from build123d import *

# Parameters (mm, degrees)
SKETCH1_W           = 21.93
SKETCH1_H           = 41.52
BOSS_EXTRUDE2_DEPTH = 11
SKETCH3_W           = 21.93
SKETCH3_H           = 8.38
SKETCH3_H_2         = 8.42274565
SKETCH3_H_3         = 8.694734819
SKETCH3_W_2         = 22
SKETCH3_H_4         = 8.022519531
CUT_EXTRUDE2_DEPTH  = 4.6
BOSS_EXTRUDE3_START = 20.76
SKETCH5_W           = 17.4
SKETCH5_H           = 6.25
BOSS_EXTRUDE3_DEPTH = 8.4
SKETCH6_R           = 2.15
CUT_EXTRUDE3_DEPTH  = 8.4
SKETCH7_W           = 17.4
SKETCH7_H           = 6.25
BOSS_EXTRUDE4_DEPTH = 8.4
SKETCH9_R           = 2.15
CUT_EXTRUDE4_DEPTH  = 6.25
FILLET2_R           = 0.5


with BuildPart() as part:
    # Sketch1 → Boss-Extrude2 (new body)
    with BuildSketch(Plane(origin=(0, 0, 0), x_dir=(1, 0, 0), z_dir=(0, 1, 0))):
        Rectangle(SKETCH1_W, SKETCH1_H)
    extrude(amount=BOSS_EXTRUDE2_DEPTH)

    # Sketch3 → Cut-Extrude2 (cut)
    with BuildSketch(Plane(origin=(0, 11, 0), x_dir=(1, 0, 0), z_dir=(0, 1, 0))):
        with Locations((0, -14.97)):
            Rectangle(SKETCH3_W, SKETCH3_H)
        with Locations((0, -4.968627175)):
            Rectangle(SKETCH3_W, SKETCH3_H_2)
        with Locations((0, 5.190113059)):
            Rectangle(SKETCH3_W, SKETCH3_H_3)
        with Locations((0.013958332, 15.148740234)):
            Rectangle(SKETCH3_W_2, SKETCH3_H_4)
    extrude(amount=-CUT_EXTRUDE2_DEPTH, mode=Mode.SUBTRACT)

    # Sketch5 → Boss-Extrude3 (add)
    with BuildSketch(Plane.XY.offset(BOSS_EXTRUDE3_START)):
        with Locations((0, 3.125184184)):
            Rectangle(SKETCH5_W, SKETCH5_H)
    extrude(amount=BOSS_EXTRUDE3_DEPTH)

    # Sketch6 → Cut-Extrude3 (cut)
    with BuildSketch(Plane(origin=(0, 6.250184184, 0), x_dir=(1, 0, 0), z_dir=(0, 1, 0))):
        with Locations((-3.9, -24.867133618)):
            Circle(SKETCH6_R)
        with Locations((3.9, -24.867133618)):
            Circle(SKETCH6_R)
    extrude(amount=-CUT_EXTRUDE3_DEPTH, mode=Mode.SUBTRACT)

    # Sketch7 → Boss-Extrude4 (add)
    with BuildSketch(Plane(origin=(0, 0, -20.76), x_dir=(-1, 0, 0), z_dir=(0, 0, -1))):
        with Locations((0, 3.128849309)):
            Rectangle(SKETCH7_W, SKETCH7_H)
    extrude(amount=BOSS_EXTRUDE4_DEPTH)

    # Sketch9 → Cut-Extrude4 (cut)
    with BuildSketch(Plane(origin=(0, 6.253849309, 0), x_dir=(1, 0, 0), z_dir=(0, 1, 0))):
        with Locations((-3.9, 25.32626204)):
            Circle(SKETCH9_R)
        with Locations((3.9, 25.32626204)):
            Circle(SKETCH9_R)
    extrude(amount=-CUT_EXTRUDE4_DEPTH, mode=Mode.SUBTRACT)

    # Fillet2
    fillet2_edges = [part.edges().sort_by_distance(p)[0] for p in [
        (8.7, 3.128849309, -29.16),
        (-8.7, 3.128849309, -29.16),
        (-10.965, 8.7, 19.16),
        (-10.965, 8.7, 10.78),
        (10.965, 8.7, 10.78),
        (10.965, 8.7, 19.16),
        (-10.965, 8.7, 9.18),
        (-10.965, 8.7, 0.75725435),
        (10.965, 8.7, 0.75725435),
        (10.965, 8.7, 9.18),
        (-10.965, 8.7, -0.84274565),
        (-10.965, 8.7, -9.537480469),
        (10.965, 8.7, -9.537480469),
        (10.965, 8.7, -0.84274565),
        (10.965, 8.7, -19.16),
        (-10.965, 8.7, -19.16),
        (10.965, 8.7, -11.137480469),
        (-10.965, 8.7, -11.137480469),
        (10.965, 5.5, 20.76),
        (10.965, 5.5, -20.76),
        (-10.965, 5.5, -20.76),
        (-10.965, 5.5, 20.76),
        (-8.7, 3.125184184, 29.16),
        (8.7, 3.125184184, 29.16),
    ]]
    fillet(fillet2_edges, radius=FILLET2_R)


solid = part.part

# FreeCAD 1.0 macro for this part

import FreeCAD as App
import Part
import Sketcher


def edges_at(feature, points):
    """Names of the edges that pass closest to the given points."""
    edges = feature.Shape.Edges
    near = lambda p: min(range(len(edges)), key=lambda i: edges[i].distToShape(Part.Vertex(*p))[0])
    return sorted({f"Edge{near(p) + 1}" for p in points})


def add_polygon(sketch, points):
    """Adds a closed chain of lines whose ends are joined by coincident constraints."""
    first, n = sketch.GeometryCount, len(points)
    for a, b in zip(points, points[1:] + points[:1]):
        sketch.addGeometry(Part.LineSegment(App.Vector(*a, 0), App.Vector(*b, 0)), False)
    for i in range(n):
        sketch.addConstraint(Sketcher.Constraint("Coincident", first + i, 2, first + (i + 1) % n, 1))

doc = App.newDocument("Part")
body = doc.addObject("PartDesign::Body", "Body")

# Sketch on XZ plane
sketch1 = body.newObject("Sketcher::SketchObject", "Sketch")
sketch1.AttachmentSupport = (doc.getObject("XZ_Plane"), [""])
sketch1.MapMode = "FlatFace"
add_polygon(sketch1, [(-11, -21), (-11, 21), (11, 21), (11, -21)])  # lines 0-3
sketch1.addConstraint(Sketcher.Constraint("Vertical", 0))
sketch1.addConstraint(Sketcher.Constraint("Horizontal", 1))
sketch1.addConstraint(Sketcher.Constraint("Vertical", 2))
sketch1.addConstraint(Sketcher.Constraint("Horizontal", 3))
sketch1.addConstraint(Sketcher.Constraint("Symmetric", 0, 2, 2, 2, -1, 1))
sketch1.addConstraint(Sketcher.Constraint("DistanceX", 1, 1, 1, 2, 21.93))
sketch1.addConstraint(Sketcher.Constraint("DistanceY", 0, 1, 0, 2, 41.52))
pad1 = body.newObject("PartDesign::Pad", "Pad")
pad1.Profile = sketch1
pad1.Length = 11
pad1.Reversed = True

# Sketch on XZ plane
sketch2 = body.newObject("Sketcher::SketchObject", "Sketch001")
sketch2.AttachmentSupport = (doc.getObject("XZ_Plane"), [""])
sketch2.MapMode = "FlatFace"
sketch2.AttachmentOffset = App.Placement(App.Vector(0, 0, -11), App.Rotation())
add_polygon(sketch2, [(-11, 11), (-11, 19), (11, 19), (11, 11)])  # lines 0-3
add_polygon(sketch2, [(-11, 1), (-11, 9), (11, 9), (11, 1)])  # lines 4-7
add_polygon(sketch2, [(-11, -10), (-11, -1), (11, -1), (11, -10)])  # lines 8-11
add_polygon(sketch2, [(-11, -19), (-11, -11), (11, -11), (11, -19)])  # lines 12-15
sketch2.addConstraint(Sketcher.Constraint("Vertical", 0))
sketch2.addConstraint(Sketcher.Constraint("Horizontal", 1))
sketch2.addConstraint(Sketcher.Constraint("Vertical", 2))
sketch2.addConstraint(Sketcher.Constraint("Horizontal", 3))
sketch2.addConstraint(Sketcher.Constraint("Vertical", 4))
sketch2.addConstraint(Sketcher.Constraint("Horizontal", 5))
sketch2.addConstraint(Sketcher.Constraint("Vertical", 6))
sketch2.addConstraint(Sketcher.Constraint("Horizontal", 7))
sketch2.addConstraint(Sketcher.Constraint("Vertical", 8))
sketch2.addConstraint(Sketcher.Constraint("Horizontal", 9))
sketch2.addConstraint(Sketcher.Constraint("Vertical", 10))
sketch2.addConstraint(Sketcher.Constraint("Horizontal", 11))
sketch2.addConstraint(Sketcher.Constraint("Vertical", 12))
sketch2.addConstraint(Sketcher.Constraint("Horizontal", 13))
sketch2.addConstraint(Sketcher.Constraint("Vertical", 14))
sketch2.addConstraint(Sketcher.Constraint("Horizontal", 15))
sketch2.addConstraint(Sketcher.Constraint("Vertical", 3, 2, 4, 2))
sketch2.addConstraint(Sketcher.Constraint("Vertical", 2, 2, 5, 2))
sketch2.addConstraint(Sketcher.Constraint("Vertical", 7, 2, 8, 2))
sketch2.addConstraint(Sketcher.Constraint("Vertical", 6, 2, 9, 2))
sketch2.addConstraint(Sketcher.Constraint("DistanceX", 13, 1, 13, 2, 22.0))
sketch2.addConstraint(Sketcher.Constraint("DistanceX", 1, 1, 1, 2, 21.93))
sketch2.addConstraint(Sketcher.Constraint("DistanceY", 0, 1, 0, 2, 8.38))
sketch2.addConstraint(Sketcher.Constraint("DistanceY", 4, 2, 3, 2, 1.6))
sketch2.addConstraint(Sketcher.Constraint("DistanceY", 8, 2, 7, 2, 1.6))
sketch2.addConstraint(Sketcher.Constraint("DistanceY", 12, 2, 11, 2, 1.6))
sketch2.addConstraint(Sketcher.Constraint("DistanceY", -1, 1, 0, 2, 19.16))
sketch2.addConstraint(Sketcher.Constraint("DistanceY", 14, 2, -1, 1, 19.16))
sketch2.addConstraint(Sketcher.Constraint("DistanceX", 0, 2, -1, 1, 10.965))
sketch2.addConstraint(Sketcher.Constraint("DistanceY", 12, 1, 12, 2, 8.02252))
sketch2.addConstraint(Sketcher.Constraint("DistanceY", 4, 1, 4, 2, 8.422746))
sketch2.addConstraint(Sketcher.Constraint("DistanceX", 12, 2, -1, 1, 10.986042))
pocket1 = body.newObject("PartDesign::Pocket", "Pocket")
pocket1.Profile = sketch2
pocket1.Length = 4.6
pocket1.Reversed = True

# Sketch on XY plane
sketch3 = body.newObject("Sketcher::SketchObject", "Sketch002")
sketch3.AttachmentSupport = (doc.getObject("XY_Plane"), [""])
sketch3.MapMode = "FlatFace"
sketch3.AttachmentOffset = App.Placement(App.Vector(0, 0, 20.76), App.Rotation())
add_polygon(sketch3, [(-9, 6), (-9, 0), (9, 0), (9, 6)])  # lines 0-3
sketch3.addConstraint(Sketcher.Constraint("Vertical", 0))
sketch3.addConstraint(Sketcher.Constraint("Horizontal", 1))
sketch3.addConstraint(Sketcher.Constraint("Vertical", 2))
sketch3.addConstraint(Sketcher.Constraint("Horizontal", 3))
sketch3.addConstraint(Sketcher.Constraint("DistanceX", 1, 1, 1, 2, 17.4))
sketch3.addConstraint(Sketcher.Constraint("DistanceY", 0, 2, 0, 1, 6.25))
sketch3.addConstraint(Sketcher.Constraint("DistanceX", 0, 2, -1, 1, 8.7))
sketch3.addConstraint(Sketcher.Constraint("DistanceY", -1, 1, 0, 2, 0.000184))
pad2 = body.newObject("PartDesign::Pad", "Pad001")
pad2.Profile = sketch3
pad2.Length = 8.4

# Sketch on XZ plane
sketch4 = body.newObject("Sketcher::SketchObject", "Sketch003")
sketch4.AttachmentSupport = (doc.getObject("XZ_Plane"), [""])
sketch4.MapMode = "FlatFace"
sketch4.AttachmentOffset = App.Placement(App.Vector(0, 0, -6.250184), App.Rotation())
sketch4.addGeometry(Part.Circle(App.Vector(-3.9, 24.9, 0), App.Vector(0, 0, 1), 2.1), False)
sketch4.addGeometry(Part.Circle(App.Vector(3.9, 24.9, 0), App.Vector(0, 0, 1), 2.1), False)
sketch4.addConstraint(Sketcher.Constraint("Equal", 0, 1))
sketch4.addConstraint(Sketcher.Constraint("Symmetric", 0, 3, 1, 3, -2))
sketch4.addConstraint(Sketcher.Constraint("Diameter", 0, 4.3))
sketch4.addConstraint(Sketcher.Constraint("DistanceX", 0, 3, -1, 1, 3.9))
sketch4.addConstraint(Sketcher.Constraint("DistanceY", -1, 1, 0, 3, 24.867134))
pocket2 = body.newObject("PartDesign::Pocket", "Pocket001")
pocket2.Profile = sketch4
pocket2.Length = 8.4
pocket2.Reversed = True

# Sketch on XY plane
sketch5 = body.newObject("Sketcher::SketchObject", "Sketch004")
sketch5.AttachmentSupport = (doc.getObject("XY_Plane"), [""])
sketch5.MapMode = "FlatFace"
sketch5.AttachmentOffset = App.Placement(App.Vector(0, 0, -20.76), App.Rotation())
add_polygon(sketch5, [(9, 6), (9, 0), (-9, 0), (-9, 6)])  # lines 0-3
sketch5.addConstraint(Sketcher.Constraint("Vertical", 0))
sketch5.addConstraint(Sketcher.Constraint("Horizontal", 1))
sketch5.addConstraint(Sketcher.Constraint("Vertical", 2))
sketch5.addConstraint(Sketcher.Constraint("Horizontal", 3))
sketch5.addConstraint(Sketcher.Constraint("DistanceX", 1, 2, 1, 1, 17.4))
sketch5.addConstraint(Sketcher.Constraint("DistanceY", 0, 2, 0, 1, 6.25))
sketch5.addConstraint(Sketcher.Constraint("DistanceX", -1, 1, 0, 2, 8.7))
sketch5.addConstraint(Sketcher.Constraint("DistanceY", -1, 1, 0, 2, 0.003849))
pad3 = body.newObject("PartDesign::Pad", "Pad002")
pad3.Profile = sketch5
pad3.Length = 8.4
pad3.Reversed = True

# Sketch on XZ plane
sketch6 = body.newObject("Sketcher::SketchObject", "Sketch005")
sketch6.AttachmentSupport = (doc.getObject("XZ_Plane"), [""])
sketch6.MapMode = "FlatFace"
sketch6.AttachmentOffset = App.Placement(App.Vector(0, 0, -6.253849), App.Rotation())
sketch6.addGeometry(Part.Circle(App.Vector(-3.9, -25.3, 0), App.Vector(0, 0, 1), 2.1), False)
sketch6.addGeometry(Part.Circle(App.Vector(3.9, -25.3, 0), App.Vector(0, 0, 1), 2.1), False)
sketch6.addConstraint(Sketcher.Constraint("Equal", 0, 1))
sketch6.addConstraint(Sketcher.Constraint("Symmetric", 0, 3, 1, 3, -2))
sketch6.addConstraint(Sketcher.Constraint("Diameter", 0, 4.3))
sketch6.addConstraint(Sketcher.Constraint("DistanceX", 0, 3, -1, 1, 3.9))
sketch6.addConstraint(Sketcher.Constraint("DistanceY", 0, 3, -1, 1, 25.326262))
pocket3 = body.newObject("PartDesign::Pocket", "Pocket002")
pocket3.Profile = sketch6
pocket3.Length = 6.25
pocket3.Reversed = True
doc.recompute()

fillet = body.newObject("PartDesign::Fillet", "Fillet")
fillet.Base = (pocket3, edges_at(pocket3, [
    (8.7, 3.129, -29.16),
    (-8.7, 3.129, -29.16),
    (-10.965, 8.7, 19.16),
    (-10.965, 8.7, 10.78),
    (10.965, 8.7, 10.78),
    (10.965, 8.7, 19.16),
    (-10.965, 8.7, 9.18),
    (-10.965, 8.7, 0.757),
    (10.965, 8.7, 0.757),
    (10.965, 8.7, 9.18),
    (-10.965, 8.7, -0.843),
    (-10.965, 8.7, -9.537),
    (10.965, 8.7, -9.537),
    (10.965, 8.7, -0.843),
    (10.965, 8.7, -19.16),
    (-10.965, 8.7, -19.16),
    (10.965, 8.7, -11.137),
    (-10.965, 8.7, -11.137),
    (10.965, 5.5, 20.76),
    (10.965, 5.5, -20.76),
    (-10.965, 5.5, -20.76),
    (-10.965, 5.5, 20.76),
    (-8.7, 3.125, 29.16),
    (8.7, 3.125, 29.16),
]))
fillet.Radius = 0.5

doc.recompute()
